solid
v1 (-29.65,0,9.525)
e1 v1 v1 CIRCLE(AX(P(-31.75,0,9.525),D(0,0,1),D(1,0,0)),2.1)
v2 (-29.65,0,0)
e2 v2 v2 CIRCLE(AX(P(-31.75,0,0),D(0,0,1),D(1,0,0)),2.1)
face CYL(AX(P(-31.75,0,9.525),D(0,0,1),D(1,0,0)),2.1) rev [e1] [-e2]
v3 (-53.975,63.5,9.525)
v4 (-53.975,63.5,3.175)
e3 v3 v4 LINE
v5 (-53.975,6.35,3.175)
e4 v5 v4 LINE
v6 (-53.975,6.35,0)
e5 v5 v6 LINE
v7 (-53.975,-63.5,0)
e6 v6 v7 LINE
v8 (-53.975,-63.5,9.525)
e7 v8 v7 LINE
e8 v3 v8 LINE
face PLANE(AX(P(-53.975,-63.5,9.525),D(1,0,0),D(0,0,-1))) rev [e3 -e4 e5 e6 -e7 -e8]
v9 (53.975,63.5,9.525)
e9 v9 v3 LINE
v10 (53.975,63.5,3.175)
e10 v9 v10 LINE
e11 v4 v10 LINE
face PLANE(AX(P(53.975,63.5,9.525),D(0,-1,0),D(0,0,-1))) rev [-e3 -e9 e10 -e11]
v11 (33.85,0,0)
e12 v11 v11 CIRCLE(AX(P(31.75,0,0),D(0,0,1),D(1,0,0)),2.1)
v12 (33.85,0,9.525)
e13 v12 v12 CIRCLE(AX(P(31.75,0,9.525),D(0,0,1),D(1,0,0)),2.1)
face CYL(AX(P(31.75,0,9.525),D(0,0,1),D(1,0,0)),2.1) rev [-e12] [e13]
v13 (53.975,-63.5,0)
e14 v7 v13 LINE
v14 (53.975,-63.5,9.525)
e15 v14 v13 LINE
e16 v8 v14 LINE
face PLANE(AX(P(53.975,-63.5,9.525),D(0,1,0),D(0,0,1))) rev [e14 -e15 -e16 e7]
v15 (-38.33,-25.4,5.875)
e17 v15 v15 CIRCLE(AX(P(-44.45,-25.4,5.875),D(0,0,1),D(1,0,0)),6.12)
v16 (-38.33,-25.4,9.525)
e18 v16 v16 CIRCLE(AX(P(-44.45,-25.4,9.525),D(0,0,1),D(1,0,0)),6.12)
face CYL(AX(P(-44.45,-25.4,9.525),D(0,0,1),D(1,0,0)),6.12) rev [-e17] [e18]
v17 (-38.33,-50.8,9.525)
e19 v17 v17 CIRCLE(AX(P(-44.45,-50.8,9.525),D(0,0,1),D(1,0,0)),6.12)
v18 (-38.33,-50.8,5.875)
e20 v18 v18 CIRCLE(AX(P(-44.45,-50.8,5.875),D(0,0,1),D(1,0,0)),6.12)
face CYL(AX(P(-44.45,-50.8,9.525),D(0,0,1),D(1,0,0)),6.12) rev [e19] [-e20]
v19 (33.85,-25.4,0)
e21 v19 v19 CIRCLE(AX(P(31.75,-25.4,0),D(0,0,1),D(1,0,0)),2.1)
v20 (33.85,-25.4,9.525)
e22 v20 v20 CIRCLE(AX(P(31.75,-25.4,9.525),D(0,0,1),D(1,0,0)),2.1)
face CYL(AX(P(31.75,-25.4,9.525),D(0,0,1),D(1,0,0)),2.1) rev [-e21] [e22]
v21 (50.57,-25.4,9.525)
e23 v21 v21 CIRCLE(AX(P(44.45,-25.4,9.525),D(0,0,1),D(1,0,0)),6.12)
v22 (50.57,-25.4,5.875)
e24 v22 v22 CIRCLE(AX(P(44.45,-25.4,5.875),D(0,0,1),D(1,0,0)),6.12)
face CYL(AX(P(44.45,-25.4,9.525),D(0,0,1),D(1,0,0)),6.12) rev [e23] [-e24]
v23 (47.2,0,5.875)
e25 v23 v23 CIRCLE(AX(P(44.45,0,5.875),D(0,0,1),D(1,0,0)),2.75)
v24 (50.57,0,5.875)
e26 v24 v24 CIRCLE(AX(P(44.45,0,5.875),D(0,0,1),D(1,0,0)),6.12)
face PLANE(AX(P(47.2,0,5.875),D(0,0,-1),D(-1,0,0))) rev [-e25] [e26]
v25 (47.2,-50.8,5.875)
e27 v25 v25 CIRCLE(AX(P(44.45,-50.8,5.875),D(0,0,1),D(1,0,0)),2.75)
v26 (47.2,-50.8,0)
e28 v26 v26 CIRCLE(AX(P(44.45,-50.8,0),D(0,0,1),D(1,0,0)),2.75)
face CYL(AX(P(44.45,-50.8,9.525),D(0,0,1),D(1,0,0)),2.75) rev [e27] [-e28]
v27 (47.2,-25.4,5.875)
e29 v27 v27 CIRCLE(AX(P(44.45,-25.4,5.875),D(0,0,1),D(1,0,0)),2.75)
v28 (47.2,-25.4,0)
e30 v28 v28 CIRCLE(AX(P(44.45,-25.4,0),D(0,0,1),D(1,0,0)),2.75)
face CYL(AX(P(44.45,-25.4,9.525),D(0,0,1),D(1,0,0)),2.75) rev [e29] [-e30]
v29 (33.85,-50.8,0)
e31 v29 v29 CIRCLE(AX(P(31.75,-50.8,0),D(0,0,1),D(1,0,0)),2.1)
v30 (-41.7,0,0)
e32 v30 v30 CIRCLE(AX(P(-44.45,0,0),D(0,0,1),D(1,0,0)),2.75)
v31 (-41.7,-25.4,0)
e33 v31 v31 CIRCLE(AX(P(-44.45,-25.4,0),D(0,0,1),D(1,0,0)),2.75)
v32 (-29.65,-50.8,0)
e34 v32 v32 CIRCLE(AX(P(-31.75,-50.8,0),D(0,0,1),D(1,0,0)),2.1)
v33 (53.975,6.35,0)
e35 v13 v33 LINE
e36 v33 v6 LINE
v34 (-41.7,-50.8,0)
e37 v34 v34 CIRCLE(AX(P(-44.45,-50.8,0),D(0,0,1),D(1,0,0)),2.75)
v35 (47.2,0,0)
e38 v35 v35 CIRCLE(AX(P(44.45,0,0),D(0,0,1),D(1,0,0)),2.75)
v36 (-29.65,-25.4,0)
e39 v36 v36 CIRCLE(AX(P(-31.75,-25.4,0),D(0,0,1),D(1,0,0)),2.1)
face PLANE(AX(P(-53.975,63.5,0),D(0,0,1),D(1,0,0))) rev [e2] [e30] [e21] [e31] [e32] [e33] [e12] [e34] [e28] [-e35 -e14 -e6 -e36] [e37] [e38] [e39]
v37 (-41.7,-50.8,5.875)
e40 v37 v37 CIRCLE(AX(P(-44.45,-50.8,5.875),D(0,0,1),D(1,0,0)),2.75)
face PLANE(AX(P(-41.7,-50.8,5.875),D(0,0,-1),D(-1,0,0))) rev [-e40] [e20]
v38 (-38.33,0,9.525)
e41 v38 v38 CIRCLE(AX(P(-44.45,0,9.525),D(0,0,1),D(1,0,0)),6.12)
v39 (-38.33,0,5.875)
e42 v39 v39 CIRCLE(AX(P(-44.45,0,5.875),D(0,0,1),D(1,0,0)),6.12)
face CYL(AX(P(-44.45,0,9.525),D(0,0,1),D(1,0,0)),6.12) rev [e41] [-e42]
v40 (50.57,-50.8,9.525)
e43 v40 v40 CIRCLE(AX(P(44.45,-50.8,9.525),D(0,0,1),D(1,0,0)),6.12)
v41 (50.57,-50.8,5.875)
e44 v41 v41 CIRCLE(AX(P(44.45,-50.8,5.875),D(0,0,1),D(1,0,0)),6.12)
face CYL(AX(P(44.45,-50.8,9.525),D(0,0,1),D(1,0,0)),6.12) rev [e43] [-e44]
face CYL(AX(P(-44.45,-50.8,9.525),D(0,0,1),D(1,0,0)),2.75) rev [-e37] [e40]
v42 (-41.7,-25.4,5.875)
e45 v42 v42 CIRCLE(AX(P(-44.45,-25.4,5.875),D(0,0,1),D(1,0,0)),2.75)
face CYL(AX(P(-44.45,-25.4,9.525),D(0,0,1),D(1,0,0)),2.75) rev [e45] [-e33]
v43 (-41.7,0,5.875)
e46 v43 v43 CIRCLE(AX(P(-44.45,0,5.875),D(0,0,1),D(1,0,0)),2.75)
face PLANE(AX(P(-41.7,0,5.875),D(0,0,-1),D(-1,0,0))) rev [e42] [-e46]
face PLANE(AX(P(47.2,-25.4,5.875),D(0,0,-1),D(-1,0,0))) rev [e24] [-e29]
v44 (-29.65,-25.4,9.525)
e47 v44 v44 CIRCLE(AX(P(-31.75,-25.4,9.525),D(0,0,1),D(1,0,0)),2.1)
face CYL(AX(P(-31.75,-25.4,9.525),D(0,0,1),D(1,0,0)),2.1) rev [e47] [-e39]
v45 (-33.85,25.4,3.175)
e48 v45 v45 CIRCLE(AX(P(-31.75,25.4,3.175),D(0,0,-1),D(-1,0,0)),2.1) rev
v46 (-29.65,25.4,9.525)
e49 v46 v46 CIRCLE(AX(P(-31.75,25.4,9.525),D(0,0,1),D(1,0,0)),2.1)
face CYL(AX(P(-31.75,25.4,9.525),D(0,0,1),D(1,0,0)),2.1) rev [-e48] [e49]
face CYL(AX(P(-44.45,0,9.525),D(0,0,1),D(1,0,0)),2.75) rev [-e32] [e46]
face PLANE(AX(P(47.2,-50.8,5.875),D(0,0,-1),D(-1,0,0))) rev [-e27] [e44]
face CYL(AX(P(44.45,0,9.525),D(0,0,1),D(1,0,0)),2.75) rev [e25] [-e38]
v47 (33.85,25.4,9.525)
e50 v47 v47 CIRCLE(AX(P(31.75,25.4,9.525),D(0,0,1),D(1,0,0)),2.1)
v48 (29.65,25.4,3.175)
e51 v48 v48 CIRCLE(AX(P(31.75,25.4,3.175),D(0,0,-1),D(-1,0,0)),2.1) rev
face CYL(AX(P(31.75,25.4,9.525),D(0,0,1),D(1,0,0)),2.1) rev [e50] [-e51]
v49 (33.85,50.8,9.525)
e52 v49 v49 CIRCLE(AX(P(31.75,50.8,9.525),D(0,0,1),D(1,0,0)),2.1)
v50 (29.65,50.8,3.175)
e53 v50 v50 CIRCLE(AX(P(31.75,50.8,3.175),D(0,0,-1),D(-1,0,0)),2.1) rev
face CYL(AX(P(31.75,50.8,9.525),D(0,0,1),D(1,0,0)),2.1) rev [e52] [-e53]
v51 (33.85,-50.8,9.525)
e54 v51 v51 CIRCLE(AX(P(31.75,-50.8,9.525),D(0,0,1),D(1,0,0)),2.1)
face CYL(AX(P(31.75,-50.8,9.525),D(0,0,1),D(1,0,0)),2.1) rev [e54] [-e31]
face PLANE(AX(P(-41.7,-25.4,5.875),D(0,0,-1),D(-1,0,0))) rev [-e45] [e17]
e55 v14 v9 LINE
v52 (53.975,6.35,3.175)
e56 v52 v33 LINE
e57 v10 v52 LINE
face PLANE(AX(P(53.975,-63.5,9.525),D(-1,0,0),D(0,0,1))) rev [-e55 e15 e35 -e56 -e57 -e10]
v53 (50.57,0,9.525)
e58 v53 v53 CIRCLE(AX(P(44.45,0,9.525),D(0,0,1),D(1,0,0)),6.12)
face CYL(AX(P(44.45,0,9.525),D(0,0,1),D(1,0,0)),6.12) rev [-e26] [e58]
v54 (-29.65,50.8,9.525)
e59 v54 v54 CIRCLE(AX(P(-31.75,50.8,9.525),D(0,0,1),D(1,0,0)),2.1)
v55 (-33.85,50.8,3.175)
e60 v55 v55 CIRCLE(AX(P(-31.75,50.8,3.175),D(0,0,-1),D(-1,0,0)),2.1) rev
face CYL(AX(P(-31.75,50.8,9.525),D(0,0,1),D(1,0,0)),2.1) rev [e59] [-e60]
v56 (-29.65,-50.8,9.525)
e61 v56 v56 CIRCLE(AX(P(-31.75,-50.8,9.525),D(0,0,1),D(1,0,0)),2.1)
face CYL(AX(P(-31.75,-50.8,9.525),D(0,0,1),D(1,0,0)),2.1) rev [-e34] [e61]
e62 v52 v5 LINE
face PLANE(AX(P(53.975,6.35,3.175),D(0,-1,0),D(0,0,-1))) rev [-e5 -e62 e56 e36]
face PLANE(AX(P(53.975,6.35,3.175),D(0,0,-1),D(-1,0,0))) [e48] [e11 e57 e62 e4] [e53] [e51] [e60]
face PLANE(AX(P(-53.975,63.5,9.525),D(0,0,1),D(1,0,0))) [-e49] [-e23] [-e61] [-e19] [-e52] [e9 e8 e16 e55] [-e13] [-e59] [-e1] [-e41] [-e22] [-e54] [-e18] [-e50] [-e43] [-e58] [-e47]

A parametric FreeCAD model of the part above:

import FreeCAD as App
import Part
import Sketcher

V = App.Vector
Q = App.Units.Quantity

doc = App.newDocument("Part")
params = doc.addObject("Spreadsheet::Sheet", "Params")
for row, (alias, value) in enumerate([
    ("sketch1_height", "5 in"),
    ("sketch1_width", "4.25 in"),
    ("pad1_length", "0.375 in"),
    ("hole_diameter", "5.5 mm"),
    ("hole_cbore_diameter", "12.24 mm"),
    ("hole_cbore_depth", "3.65 mm"),
    ("linearpattern_pitch", "1 in"),
    ("linearpattern2_pitch", "3.5 in"),
    ("hole2_diameter", "5.5 mm"),
    ("hole2_cbore_diameter", "12.24 mm"),
    ("hole2_cbore_depth", "3.65 mm"),
    ("hole3_diameter", "5.5 mm"),
    ("hole3_cbore_diameter", "12.24 mm"),
    ("hole3_cbore_depth", "3.65 mm"),
    ("hole4_diameter", "4.2 mm"),
    ("linearpattern3_pitch", "1 in"),
    ("linearpattern4_pitch", "2.5 in"),
    ("hole5_diameter", "4.2 mm"),
    ("hole6_diameter", "4.2 mm"),
    ("hole7_diameter", "4.2 mm"),
    ("hole8_diameter", "4.2 mm"),
    ("sketch10_width", "4.25 in"),
    ("sketch10_height", "2.25 in"),
    ("pocket1_length", "0.125 in"),
], start=1):
    params.set(f"A{row}", alias)
    params.set(f"B{row}", "=" + value)
    params.setAlias(f"B{row}", alias)

body = doc.addObject("PartDesign::Body", "Body")

# Sketch on XY plane
sketch1 = body.newObject("Sketcher::SketchObject", "Sketch")
sketch1.AttachmentSupport = (doc.getObject("XY_Plane"), [""])
sketch1.MapMode = "FlatFace"
sketch1.addGeometry([
    Part.LineSegment(V(-54, 64, 0), V(-54, -64, 0)),
    Part.LineSegment(V(-54, -64, 0), V(54, -64, 0)),
    Part.LineSegment(V(54, -64, 0), V(54, 64, 0)),
    Part.LineSegment(V(54, 64, 0), V(-54, 64, 0)),
], False)
sketch1.addConstraint([
    Sketcher.Constraint("Coincident", 0, 2, 1, 1),
    Sketcher.Constraint("Coincident", 1, 2, 2, 1),
    Sketcher.Constraint("Coincident", 2, 2, 3, 1),
    Sketcher.Constraint("Coincident", 3, 2, 0, 1),
    Sketcher.Constraint("Vertical", 0),
    Sketcher.Constraint("Horizontal", 1),
    Sketcher.Constraint("Vertical", 2),
    Sketcher.Constraint("Horizontal", 3),
    Sketcher.Constraint("Symmetric", 0, 2, 2, 2, -1, 1),
    Sketcher.Constraint("DistanceY", 0, 2, 0, 1, Q("5 in")),
    Sketcher.Constraint("DistanceX", 1, 1, 1, 2, Q("4.25 in")),
])
sketch1.setExpression("Constraints[9]", "Params.sketch1_height")
sketch1.setExpression("Constraints[10]", "Params.sketch1_width")
pad1 = body.newObject("PartDesign::Pad", "Pad")
pad1.Profile = sketch1
pad1.setExpression("Length", "Params.pad1_length")

# Sketch on XY plane
sketch2 = body.newObject("Sketcher::SketchObject", "Sketch001")
sketch2.AttachmentSupport = (doc.getObject("XY_Plane"), [""])
sketch2.MapMode = "FlatFace"
sketch2.AttachmentOffset = App.Placement(V(0, 0, 0.375 * 25.4), App.Rotation())
sketch2.addGeometry(Part.Circle(V(-44.5, -50.8, 0), V(0, 0, 1), 2.8), False)
sketch2.addConstraint([
    Sketcher.Constraint("DistanceY", 0, 3, -1, 1, Q("2 in")),
    Sketcher.Constraint("Diameter", 0, 5.5),
    Sketcher.Constraint("DistanceX", 0, 3, -1, 1, Q("1.75 in")),
])
doc.recompute()
hole = body.newObject("PartDesign::Hole", "Hole")
hole.Profile = sketch2
hole.ThreadType = "None"
hole.setExpression("Diameter", "Params.hole_diameter")
hole.DepthType = "ThroughAll"
hole.HoleCutType = "Counterbore"
hole.setExpression("HoleCutDiameter", "Params.hole_cbore_diameter")
hole.setExpression("HoleCutDepth", "Params.hole_cbore_depth")
doc.recompute()

linearpattern = body.newObject("PartDesign::LinearPattern", "LinearPattern")
linearpattern.Originals = [hole]
linearpattern.Direction = (doc.getObject("Y_Axis"), [""])
linearpattern.Mode = "offset"
linearpattern.setExpression("Offset", "Params.linearpattern_pitch")
linearpattern.Occurrences = 3
body.Tip = linearpattern
doc.recompute()

linearpattern2 = body.newObject("PartDesign::LinearPattern", "LinearPattern001")
linearpattern2.Originals = [hole]
linearpattern2.Direction = (doc.getObject("X_Axis"), [""])
linearpattern2.Mode = "offset"
linearpattern2.setExpression("Offset", "Params.linearpattern2_pitch")
linearpattern2.Occurrences = 2
body.Tip = linearpattern2

# Sketch on XY plane
sketch3 = body.newObject("Sketcher::SketchObject", "Sketch002")
sketch3.AttachmentSupport = (doc.getObject("XY_Plane"), [""])
sketch3.MapMode = "FlatFace"
sketch3.AttachmentOffset = App.Placement(V(0, 0, 0.375 * 25.4), App.Rotation())
sketch3.addGeometry(Part.Circle(V(44.5, -25.4, 0), V(0, 0, 1), 2.8), False)
sketch3.addConstraint([
    Sketcher.Constraint("DistanceY", 0, 3, -1, 1, Q("1 in")),
    Sketcher.Constraint("Diameter", 0, 5.5),
    Sketcher.Constraint("DistanceX", -1, 1, 0, 3, Q("1.75 in")),
])
doc.recompute()
hole2 = body.newObject("PartDesign::Hole", "Hole001")
hole2.Profile = sketch3
hole2.ThreadType = "None"
hole2.setExpression("Diameter", "Params.hole2_diameter")
hole2.DepthType = "ThroughAll"
hole2.HoleCutType = "Counterbore"
hole2.setExpression("HoleCutDiameter", "Params.hole2_cbore_diameter")
hole2.setExpression("HoleCutDepth", "Params.hole2_cbore_depth")

# Sketch on XY plane
sketch4 = body.newObject("Sketcher::SketchObject", "Sketch003")
sketch4.AttachmentSupport = (doc.getObject("XY_Plane"), [""])
sketch4.MapMode = "FlatFace"
sketch4.AttachmentOffset = App.Placement(V(0, 0, 0.375 * 25.4), App.Rotation())
sketch4.addGeometry(Part.Circle(V(44.5, 0, 0), V(0, 0, 1), 2.8), False)
sketch4.addConstraint([
    Sketcher.Constraint("PointOnObject", 0, 3, -1),
    Sketcher.Constraint("Diameter", 0, 5.5),
    Sketcher.Constraint("DistanceX", -1, 1, 0, 3, Q("1.75 in")),
])
doc.recompute()
hole3 = body.newObject("PartDesign::Hole", "Hole002")
hole3.Profile = sketch4
hole3.ThreadType = "None"
hole3.setExpression("Diameter", "Params.hole3_diameter")
hole3.DepthType = "ThroughAll"
hole3.HoleCutType = "Counterbore"
hole3.setExpression("HoleCutDiameter", "Params.hole3_cbore_diameter")
hole3.setExpression("HoleCutDepth", "Params.hole3_cbore_depth")

# Sketch on XY plane
sketch5 = body.newObject("Sketcher::SketchObject", "Sketch004")
sketch5.AttachmentSupport = (doc.getObject("XY_Plane"), [""])
sketch5.MapMode = "FlatFace"
sketch5.AttachmentOffset = App.Placement(V(0, 0, 0.375 * 25.4), App.Rotation())
sketch5.addGeometry(Part.Circle(V(-31.8, -50.8, 0), V(0, 0, 1), 2.1), False)
sketch5.addConstraint([
    Sketcher.Constraint("DistanceY", 0, 3, -1, 1, Q("2 in")),
    Sketcher.Constraint("Diameter", 0, 4.2),
    Sketcher.Constraint("DistanceX", 0, 3, -1, 1, Q("1.25 in")),
])
doc.recompute()
hole4 = body.newObject("PartDesign::Hole", "Hole003")
hole4.Profile = sketch5
hole4.ThreadType = "None"
hole4.setExpression("Diameter", "Params.hole4_diameter")
hole4.DepthType = "ThroughAll"
doc.recompute()

linearpattern3 = body.newObject("PartDesign::LinearPattern", "LinearPattern002")
linearpattern3.Originals = [hole4]
linearpattern3.Direction = (doc.getObject("Y_Axis"), [""])
linearpattern3.Mode = "offset"
linearpattern3.setExpression("Offset", "Params.linearpattern3_pitch")
linearpattern3.Occurrences = 5
body.Tip = linearpattern3
doc.recompute()

linearpattern4 = body.newObject("PartDesign::LinearPattern", "LinearPattern003")
linearpattern4.Originals = [hole4]
linearpattern4.Direction = (doc.getObject("X_Axis"), [""])
linearpattern4.Mode = "offset"
linearpattern4.setExpression("Offset", "Params.linearpattern4_pitch")
linearpattern4.Occurrences = 2
body.Tip = linearpattern4

# Sketch on XY plane
sketch6 = body.newObject("Sketcher::SketchObject", "Sketch005")
sketch6.AttachmentSupport = (doc.getObject("XY_Plane"), [""])
sketch6.MapMode = "FlatFace"
sketch6.AttachmentOffset = App.Placement(V(0, 0, 0.375 * 25.4), App.Rotation())
sketch6.addGeometry(Part.Circle(V(31.8, -25.4, 0), V(0, 0, 1), 2.1), False)
sketch6.addConstraint([
    Sketcher.Constraint("DistanceY", 0, 3, -1, 1, Q("1 in")),
    Sketcher.Constraint("Diameter", 0, 4.2),
    Sketcher.Constraint("DistanceX", -1, 1, 0, 3, Q("1.25 in")),
])
doc.recompute()
hole5 = body.newObject("PartDesign::Hole", "Hole004")
hole5.Profile = sketch6
hole5.ThreadType = "None"
hole5.setExpression("Diameter", "Params.hole5_diameter")
hole5.DepthType = "ThroughAll"

# Sketch on XY plane
sketch7 = body.newObject("Sketcher::SketchObject", "Sketch006")
sketch7.AttachmentSupport = (doc.getObject("XY_Plane"), [""])
sketch7.MapMode = "FlatFace"
sketch7.AttachmentOffset = App.Placement(V(0, 0, 0.375 * 25.4), App.Rotation())
sketch7.addGeometry(Part.Circle(V(31.8, 0, 0), V(0, 0, 1), 2.1), False)
sketch7.addConstraint([
    Sketcher.Constraint("PointOnObject", 0, 3, -1),
    Sketcher.Constraint("Diameter", 0, 4.2),
    Sketcher.Constraint("DistanceX", -1, 1, 0, 3, Q("1.25 in")),
])
doc.recompute()
hole6 = body.newObject("PartDesign::Hole", "Hole005")
hole6.Profile = sketch7
hole6.ThreadType = "None"
hole6.setExpression("Diameter", "Params.hole6_diameter")
hole6.DepthType = "ThroughAll"

# Sketch on XY plane
sketch8 = body.newObject("Sketcher::SketchObject", "Sketch007")
sketch8.AttachmentSupport = (doc.getObject("XY_Plane"), [""])
sketch8.MapMode = "FlatFace"
sketch8.AttachmentOffset = App.Placement(V(0, 0, 0.375 * 25.4), App.Rotation())
sketch8.addGeometry(Part.Circle(V(31.8, 25.4, 0), V(0, 0, 1), 2.1), False)
sketch8.addConstraint([
    Sketcher.Constraint("DistanceY", -1, 1, 0, 3, Q("1 in")),
    Sketcher.Constraint("Diameter", 0, 4.2),
    Sketcher.Constraint("DistanceX", -1, 1, 0, 3, Q("1.25 in")),
])
doc.recompute()
hole7 = body.newObject("PartDesign::Hole", "Hole006")
hole7.Profile = sketch8
hole7.ThreadType = "None"
hole7.setExpression("Diameter", "Params.hole7_diameter")
hole7.DepthType = "ThroughAll"

# Sketch on XY plane
sketch9 = body.newObject("Sketcher::SketchObject", "Sketch008")
sketch9.AttachmentSupport = (doc.getObject("XY_Plane"), [""])
sketch9.MapMode = "FlatFace"
sketch9.AttachmentOffset = App.Placement(V(0, 0, 0.375 * 25.4), App.Rotation())
sketch9.addGeometry(Part.Circle(V(31.8, 50.8, 0), V(0, 0, 1), 2.1), False)
sketch9.addConstraint([
    Sketcher.Constraint("DistanceY", -1, 1, 0, 3, Q("2 in")),
    Sketcher.Constraint("Diameter", 0, 4.2),
    Sketcher.Constraint("DistanceX", -1, 1, 0, 3, Q("1.25 in")),
])
doc.recompute()
hole8 = body.newObject("PartDesign::Hole", "Hole007")
hole8.Profile = sketch9
hole8.ThreadType = "None"
hole8.setExpression("Diameter", "Params.hole8_diameter")
hole8.DepthType = "ThroughAll"

# Sketch on XY plane
sketch10 = body.newObject("Sketcher::SketchObject", "Sketch009")
sketch10.AttachmentSupport = (doc.getObject("XY_Plane"), [""])
sketch10.MapMode = "FlatFace"
sketch10.addGeometry([
    Part.LineSegment(V(54, 64, 0), V(54, 6, 0)),
    Part.LineSegment(V(54, 6, 0), V(-54, 6, 0)),
    Part.LineSegment(V(-54, 6, 0), V(-54, 64, 0)),
    Part.LineSegment(V(-54, 64, 0), V(54, 64, 0)),
], False)
sketch10.addConstraint([
    Sketcher.Constraint("Coincident", 0, 2, 1, 1),
    Sketcher.Constraint("Coincident", 1, 2, 2, 1),
    Sketcher.Constraint("Coincident", 2, 2, 3, 1),
    Sketcher.Constraint("Coincident", 3, 2, 0, 1),
    Sketcher.Constraint("Vertical", 0),
    Sketcher.Constraint("Horizontal", 1),
    Sketcher.Constraint("Vertical", 2),
    Sketcher.Constraint("Horizontal", 3),
    Sketcher.Constraint("DistanceX", 1, 2, 1, 1, Q("4.25 in")),
    Sketcher.Constraint("DistanceY", 0, 2, 0, 1, Q("2.25 in")),
    Sketcher.Constraint("DistanceY", -1, 1, 2, 2, Q("2.5 in")),
    Sketcher.Constraint("DistanceX", -1, 1, 0, 2, Q("2.125 in")),
])
sketch10.setExpression("Constraints[8]", "Params.sketch10_width")
sketch10.setExpression("Constraints[9]", "Params.sketch10_height")
pocket1 = body.newObject("PartDesign::Pocket", "Pocket")
pocket1.Profile = sketch10
pocket1.setExpression("Length", "Params.pocket1_length")
pocket1.Reversed = True

doc.recompute()
